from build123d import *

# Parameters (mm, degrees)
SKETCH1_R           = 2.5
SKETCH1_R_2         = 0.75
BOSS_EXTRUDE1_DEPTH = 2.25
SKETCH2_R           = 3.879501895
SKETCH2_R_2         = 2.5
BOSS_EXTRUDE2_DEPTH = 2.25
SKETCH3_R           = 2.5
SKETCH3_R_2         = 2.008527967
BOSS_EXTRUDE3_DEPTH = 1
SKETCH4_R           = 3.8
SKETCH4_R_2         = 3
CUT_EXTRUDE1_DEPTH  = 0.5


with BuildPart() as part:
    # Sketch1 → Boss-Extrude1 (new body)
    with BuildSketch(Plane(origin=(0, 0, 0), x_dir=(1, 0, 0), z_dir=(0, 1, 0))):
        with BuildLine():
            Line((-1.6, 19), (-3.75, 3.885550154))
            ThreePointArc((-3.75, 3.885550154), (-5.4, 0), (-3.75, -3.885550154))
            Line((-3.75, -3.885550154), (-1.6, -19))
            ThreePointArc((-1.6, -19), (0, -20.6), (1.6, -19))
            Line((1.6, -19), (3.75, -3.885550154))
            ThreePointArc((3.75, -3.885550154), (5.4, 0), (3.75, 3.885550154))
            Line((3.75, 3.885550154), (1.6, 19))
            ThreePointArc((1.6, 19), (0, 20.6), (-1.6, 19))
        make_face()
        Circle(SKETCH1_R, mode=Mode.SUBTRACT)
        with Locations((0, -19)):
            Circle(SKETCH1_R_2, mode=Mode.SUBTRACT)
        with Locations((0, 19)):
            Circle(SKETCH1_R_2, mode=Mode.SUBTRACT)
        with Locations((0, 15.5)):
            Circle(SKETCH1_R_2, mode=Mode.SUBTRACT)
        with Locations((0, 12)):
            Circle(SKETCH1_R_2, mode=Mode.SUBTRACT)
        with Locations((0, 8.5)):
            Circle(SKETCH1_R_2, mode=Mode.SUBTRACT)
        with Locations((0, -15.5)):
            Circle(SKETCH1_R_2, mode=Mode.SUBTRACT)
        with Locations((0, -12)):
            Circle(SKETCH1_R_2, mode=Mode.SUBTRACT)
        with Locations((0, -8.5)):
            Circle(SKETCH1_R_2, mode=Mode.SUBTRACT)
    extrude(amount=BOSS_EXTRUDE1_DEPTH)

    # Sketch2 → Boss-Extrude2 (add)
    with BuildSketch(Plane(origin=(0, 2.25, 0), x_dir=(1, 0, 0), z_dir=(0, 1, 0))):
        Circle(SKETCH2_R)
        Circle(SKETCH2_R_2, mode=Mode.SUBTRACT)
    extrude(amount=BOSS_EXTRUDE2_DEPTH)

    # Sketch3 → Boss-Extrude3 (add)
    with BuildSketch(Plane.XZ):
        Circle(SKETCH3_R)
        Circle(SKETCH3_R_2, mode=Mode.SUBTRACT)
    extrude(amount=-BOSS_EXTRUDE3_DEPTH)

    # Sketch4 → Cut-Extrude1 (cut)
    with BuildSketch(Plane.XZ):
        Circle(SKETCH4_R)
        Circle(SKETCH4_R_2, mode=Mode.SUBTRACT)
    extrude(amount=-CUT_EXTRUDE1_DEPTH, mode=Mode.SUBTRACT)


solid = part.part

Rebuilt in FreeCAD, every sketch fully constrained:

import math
import FreeCAD as App
import Part
import Sketcher

V = App.Vector
Q = App.Units.Quantity

doc = App.newDocument("Part")
params = doc.addObject("Spreadsheet::Sheet", "Params")
for row, (alias, value) in enumerate([
    ("sketch1_diameter", "5 mm"),
    ("sketch1_diameter2", "1.5 mm"),
    ("sketch1_radius", "5.4 mm"),
    ("sketch1_radius2", "1.6 mm"),
    ("pad1_length", "2.25 mm"),
    ("sketch2_diameter", "5 mm"),
    ("pad2_length", "2.25 mm"),
    ("sketch3_diameter", "5 mm"),
    ("pad3_length", "1 mm"),
    ("sketch4_diameter", "6 mm"),
    ("sketch4_diameter2", "7.6 mm"),
    ("pocket1_length", "0.5 mm"),
], start=1):
    params.set(f"A{row}", alias)
    params.set(f"B{row}", "=" + value)
    params.setAlias(f"B{row}", alias)

body = doc.addObject("PartDesign::Body", "Body")

sketch1 = body.newObject("Sketcher::SketchObject", "Sketch")
sketch1.AttachmentSupport = (doc.getObject("XZ_Plane"), [""])
sketch1.MapMode = "FlatFace"
sketch1.addGeometry(Part.LineSegment(V(-1.6, -19, 0), V(-3.8, -3.9, 0)), False)
sketch1.addGeometry(Part.ArcOfCircle(Part.Circle(V(0, 0, 0), V(0, 0, 1), 5.4), math.radians(134), math.radians(226)), False)
sketch1.addGeometry(Part.LineSegment(V(-3.8, 3.9, 0), V(-1.6, 19, 0)), False)
sketch1.addGeometry(Part.ArcOfCircle(Part.Circle(V(0, 19, 0), V(0, 0, 1), 1.6), math.radians(0), math.radians(180)), False)
sketch1.addGeometry(Part.LineSegment(V(1.6, 19, 0), V(3.8, 3.9, 0)), False)
sketch1.addGeometry(Part.ArcOfCircle(Part.Circle(V(0, 0, 0), V(0, 0, 1), 5.4), math.radians(-46), math.radians(46)), False)
sketch1.addGeometry(Part.LineSegment(V(3.8, -3.9, 0), V(1.6, -19, 0)), False)
sketch1.addGeometry(Part.ArcOfCircle(Part.Circle(V(0, -19, 0), V(0, 0, 1), 1.6), math.radians(180), math.radians(360)), False)
sketch1.addGeometry(Part.Circle(V(0, 19, 0), V(0, 0, 1), 0.8), False)
sketch1.addGeometry(Part.Circle(V(0, 15.5, 0), V(0, 0, 1), 0.8), False)
sketch1.addGeometry(Part.Circle(V(0, 12, 0), V(0, 0, 1), 0.8), False)
sketch1.addGeometry(Part.Circle(V(0, 8.5, 0), V(0, 0, 1), 0.8), False)
sketch1.addGeometry(Part.Circle(V(0, 0, 0), V(0, 0, 1), 2.5), False)
sketch1.addGeometry(Part.Circle(V(0, -8.5, 0), V(0, 0, 1), 0.8), False)
sketch1.addGeometry(Part.Circle(V(0, -12, 0), V(0, 0, 1), 0.8), False)
sketch1.addGeometry(Part.Circle(V(0, -15.5, 0), V(0, 0, 1), 0.8), False)
sketch1.addGeometry(Part.Circle(V(0, -19, 0), V(0, 0, 1), 0.8), False)
sketch1.addConstraint(Sketcher.Constraint("Coincident", 0, 2, 1, 2))
sketch1.addConstraint(Sketcher.Constraint("Coincident", 1, 1, 2, 1))
sketch1.addConstraint(Sketcher.Constraint("Coincident", 2, 2, 3, 2))
sketch1.addConstraint(Sketcher.Constraint("Coincident", 3, 1, 4, 1))
sketch1.addConstraint(Sketcher.Constraint("Coincident", 4, 2, 5, 2))
sketch1.addConstraint(Sketcher.Constraint("Coincident", 5, 1, 6, 1))
sketch1.addConstraint(Sketcher.Constraint("Coincident", 6, 2, 7, 2))
sketch1.addConstraint(Sketcher.Constraint("Coincident", 7, 1, 0, 1))
sketch1.addConstraint(Sketcher.Constraint("Coincident", 1, 3, -1, 1))
sketch1.addConstraint(Sketcher.Constraint("Coincident", 5, 3, -1, 1))
sketch1.addConstraint(Sketcher.Constraint("Coincident", 12, 3, -1, 1))
sketch1.addConstraint(Sketcher.Constraint("Coincident", 8, 3, 3, 3))
sketch1.addConstraint(Sketcher.Constraint("Coincident", 16, 3, 7, 3))
sketch1.addConstraint(Sketcher.Constraint("Equal", 1, 5))
sketch1.addConstraint(Sketcher.Constraint("Equal", 3, 7))
sketch1.addConstraint(Sketcher.Constraint("Equal", 8, 9))
sketch1.addConstraint(Sketcher.Constraint("Equal", 9, 10))
sketch1.addConstraint(Sketcher.Constraint("Equal", 10, 11))
sketch1.addConstraint(Sketcher.Constraint("Equal", 11, 13))
sketch1.addConstraint(Sketcher.Constraint("Equal", 13, 14))
sketch1.addConstraint(Sketcher.Constraint("Equal", 14, 15))
sketch1.addConstraint(Sketcher.Constraint("Equal", 15, 16))
sketch1.addConstraint(Sketcher.Constraint("Symmetric", 3, 3, 7, 3, -1, 1))
sketch1.addConstraint(Sketcher.Constraint("Symmetric", 11, 3, 13, 3, -1, 1))
sketch1.addConstraint(Sketcher.Constraint("Symmetric", 10, 3, 14, 3, -1, 1))
sketch1.addConstraint(Sketcher.Constraint("Symmetric", 9, 3, 15, 3, -1, 1))
sketch1.addConstraint(Sketcher.Constraint("Symmetric", 2, 2, 3, 1, -2))
sketch1.addConstraint(Sketcher.Constraint("PointOnObject", 9, 3, -2))
sketch1.addConstraint(Sketcher.Constraint("PointOnObject", 10, 3, -2))
sketch1.addConstraint(Sketcher.Constraint("PointOnObject", 11, 3, -2))
sketch1.addConstraint(Sketcher.Constraint("Parallel", 0, 4))
sketch1.addConstraint(Sketcher.Constraint("Parallel", 2, 6))
sketch1.addConstraint(Sketcher.Constraint("Horizontal", 8, 3, 2, 2))
sketch1.addConstraint(Sketcher.Constraint("Horizontal", 1, 1, 4, 2))
sketch1.addConstraint(Sketcher.Constraint("Horizontal", 0, 2, 5, 1))
sketch1.addConstraint(Sketcher.Constraint("Horizontal", 16, 3, 6, 2))
sketch1.addConstraint(Sketcher.Constraint("Diameter", 12, Q("5 mm")))
sketch1.addConstraint(Sketcher.Constraint("Diameter", 8, Q("1.5 mm")))
sketch1.addConstraint(Sketcher.Constraint("Radius", 1, Q("5.4 mm")))
sketch1.addConstraint(Sketcher.Constraint("Radius", 3, Q("1.6 mm")))
sketch1.addConstraint(Sketcher.Constraint("DistanceY", -1, 1, 3, 3, Q("19 mm")))
sketch1.addConstraint(Sketcher.Constraint("DistanceY", -1, 1, 10, 3, Q("12 mm")))
sketch1.addConstraint(Sketcher.Constraint("DistanceY", 11, 3, 9, 3, Q("7 mm")))
sketch1.addConstraint(Sketcher.Constraint("DistanceY", 13, 3, 11, 3, Q("17 mm")))
sketch1.addConstraint(Sketcher.Constraint("DistanceX", 1, 1, 4, 2, Q("7.5 mm")))
sketch1.setExpression("Constraints[36]", "Params.sketch1_diameter")
sketch1.setExpression("Constraints[37]", "Params.sketch1_diameter2")
sketch1.setExpression("Constraints[38]", "Params.sketch1_radius")
sketch1.setExpression("Constraints[39]", "Params.sketch1_radius2")
pad1 = body.newObject("PartDesign::Pad", "Pad")
pad1.Profile = sketch1
pad1.setExpression("Length", "Params.pad1_length")
pad1.Reversed = True

sketch2 = body.newObject("Sketcher::SketchObject", "Sketch001")
sketch2.AttachmentSupport = (doc.getObject("XZ_Plane"), [""])
sketch2.MapMode = "FlatFace"
sketch2.AttachmentOffset = App.Placement(V(0, 0, -2.25), App.Rotation())
sketch2.addGeometry(Part.Circle(V(0, 0, 0), V(0, 0, 1), 3.9), False)
sketch2.addGeometry(Part.Circle(V(0, 0, 0), V(0, 0, 1), 2.5), False)
sketch2.addConstraint(Sketcher.Constraint("Coincident", 0, 3, -1, 1))
sketch2.addConstraint(Sketcher.Constraint("Coincident", 1, 3, -1, 1))
sketch2.addConstraint(Sketcher.Constraint("Diameter", 1, Q("5 mm")))
sketch2.addConstraint(Sketcher.Constraint("Diameter", 0, Q("7.759004 mm")))
sketch2.setExpression("Constraints[2]", "Params.sketch2_diameter")
pad2 = body.newObject("PartDesign::Pad", "Pad001")
pad2.Profile = sketch2
pad2.setExpression("Length", "Params.pad2_length")
pad2.Reversed = True

sketch3 = body.newObject("Sketcher::SketchObject", "Sketch002")
sketch3.AttachmentSupport = (doc.getObject("XZ_Plane"), [""])
sketch3.MapMode = "FlatFace"
sketch3.addGeometry(Part.Circle(V(0, 0, 0), V(0, 0, 1), 2.5), False)
sketch3.addGeometry(Part.Circle(V(0, 0, 0), V(0, 0, 1), 2), False)
sketch3.addConstraint(Sketcher.Constraint("Coincident", 0, 3, -1, 1))
sketch3.addConstraint(Sketcher.Constraint("Coincident", 1, 3, -1, 1))
sketch3.addConstraint(Sketcher.Constraint("Diameter", 0, Q("5 mm")))
sketch3.addConstraint(Sketcher.Constraint("Diameter", 1, Q("4.017056 mm")))
sketch3.setExpression("Constraints[2]", "Params.sketch3_diameter")
pad3 = body.newObject("PartDesign::Pad", "Pad002")
pad3.Profile = sketch3
pad3.setExpression("Length", "Params.pad3_length")
pad3.Reversed = True

sketch4 = body.newObject("Sketcher::SketchObject", "Sketch003")
sketch4.AttachmentSupport = (doc.getObject("XZ_Plane"), [""])
sketch4.MapMode = "FlatFace"
sketch4.addGeometry(Part.Circle(V(0, 0, 0), V(0, 0, 1), 3.8), False)
sketch4.addGeometry(Part.Circle(V(0, 0, 0), V(0, 0, 1), 3), False)
sketch4.addConstraint(Sketcher.Constraint("Coincident", 0, 3, -1, 1))
sketch4.addConstraint(Sketcher.Constraint("Coincident", 1, 3, -1, 1))
sketch4.addConstraint(Sketcher.Constraint("Diameter", 1, Q("6 mm")))
sketch4.addConstraint(Sketcher.Constraint("Diameter", 0, Q("7.6 mm")))
sketch4.setExpression("Constraints[2]", "Params.sketch4_diameter")
sketch4.setExpression("Constraints[3]", "Params.sketch4_diameter2")
pocket1 = body.newObject("PartDesign::Pocket", "Pocket")
pocket1.Profile = sketch4
pocket1.setExpression("Length", "Params.pocket1_length")

doc.recompute()
